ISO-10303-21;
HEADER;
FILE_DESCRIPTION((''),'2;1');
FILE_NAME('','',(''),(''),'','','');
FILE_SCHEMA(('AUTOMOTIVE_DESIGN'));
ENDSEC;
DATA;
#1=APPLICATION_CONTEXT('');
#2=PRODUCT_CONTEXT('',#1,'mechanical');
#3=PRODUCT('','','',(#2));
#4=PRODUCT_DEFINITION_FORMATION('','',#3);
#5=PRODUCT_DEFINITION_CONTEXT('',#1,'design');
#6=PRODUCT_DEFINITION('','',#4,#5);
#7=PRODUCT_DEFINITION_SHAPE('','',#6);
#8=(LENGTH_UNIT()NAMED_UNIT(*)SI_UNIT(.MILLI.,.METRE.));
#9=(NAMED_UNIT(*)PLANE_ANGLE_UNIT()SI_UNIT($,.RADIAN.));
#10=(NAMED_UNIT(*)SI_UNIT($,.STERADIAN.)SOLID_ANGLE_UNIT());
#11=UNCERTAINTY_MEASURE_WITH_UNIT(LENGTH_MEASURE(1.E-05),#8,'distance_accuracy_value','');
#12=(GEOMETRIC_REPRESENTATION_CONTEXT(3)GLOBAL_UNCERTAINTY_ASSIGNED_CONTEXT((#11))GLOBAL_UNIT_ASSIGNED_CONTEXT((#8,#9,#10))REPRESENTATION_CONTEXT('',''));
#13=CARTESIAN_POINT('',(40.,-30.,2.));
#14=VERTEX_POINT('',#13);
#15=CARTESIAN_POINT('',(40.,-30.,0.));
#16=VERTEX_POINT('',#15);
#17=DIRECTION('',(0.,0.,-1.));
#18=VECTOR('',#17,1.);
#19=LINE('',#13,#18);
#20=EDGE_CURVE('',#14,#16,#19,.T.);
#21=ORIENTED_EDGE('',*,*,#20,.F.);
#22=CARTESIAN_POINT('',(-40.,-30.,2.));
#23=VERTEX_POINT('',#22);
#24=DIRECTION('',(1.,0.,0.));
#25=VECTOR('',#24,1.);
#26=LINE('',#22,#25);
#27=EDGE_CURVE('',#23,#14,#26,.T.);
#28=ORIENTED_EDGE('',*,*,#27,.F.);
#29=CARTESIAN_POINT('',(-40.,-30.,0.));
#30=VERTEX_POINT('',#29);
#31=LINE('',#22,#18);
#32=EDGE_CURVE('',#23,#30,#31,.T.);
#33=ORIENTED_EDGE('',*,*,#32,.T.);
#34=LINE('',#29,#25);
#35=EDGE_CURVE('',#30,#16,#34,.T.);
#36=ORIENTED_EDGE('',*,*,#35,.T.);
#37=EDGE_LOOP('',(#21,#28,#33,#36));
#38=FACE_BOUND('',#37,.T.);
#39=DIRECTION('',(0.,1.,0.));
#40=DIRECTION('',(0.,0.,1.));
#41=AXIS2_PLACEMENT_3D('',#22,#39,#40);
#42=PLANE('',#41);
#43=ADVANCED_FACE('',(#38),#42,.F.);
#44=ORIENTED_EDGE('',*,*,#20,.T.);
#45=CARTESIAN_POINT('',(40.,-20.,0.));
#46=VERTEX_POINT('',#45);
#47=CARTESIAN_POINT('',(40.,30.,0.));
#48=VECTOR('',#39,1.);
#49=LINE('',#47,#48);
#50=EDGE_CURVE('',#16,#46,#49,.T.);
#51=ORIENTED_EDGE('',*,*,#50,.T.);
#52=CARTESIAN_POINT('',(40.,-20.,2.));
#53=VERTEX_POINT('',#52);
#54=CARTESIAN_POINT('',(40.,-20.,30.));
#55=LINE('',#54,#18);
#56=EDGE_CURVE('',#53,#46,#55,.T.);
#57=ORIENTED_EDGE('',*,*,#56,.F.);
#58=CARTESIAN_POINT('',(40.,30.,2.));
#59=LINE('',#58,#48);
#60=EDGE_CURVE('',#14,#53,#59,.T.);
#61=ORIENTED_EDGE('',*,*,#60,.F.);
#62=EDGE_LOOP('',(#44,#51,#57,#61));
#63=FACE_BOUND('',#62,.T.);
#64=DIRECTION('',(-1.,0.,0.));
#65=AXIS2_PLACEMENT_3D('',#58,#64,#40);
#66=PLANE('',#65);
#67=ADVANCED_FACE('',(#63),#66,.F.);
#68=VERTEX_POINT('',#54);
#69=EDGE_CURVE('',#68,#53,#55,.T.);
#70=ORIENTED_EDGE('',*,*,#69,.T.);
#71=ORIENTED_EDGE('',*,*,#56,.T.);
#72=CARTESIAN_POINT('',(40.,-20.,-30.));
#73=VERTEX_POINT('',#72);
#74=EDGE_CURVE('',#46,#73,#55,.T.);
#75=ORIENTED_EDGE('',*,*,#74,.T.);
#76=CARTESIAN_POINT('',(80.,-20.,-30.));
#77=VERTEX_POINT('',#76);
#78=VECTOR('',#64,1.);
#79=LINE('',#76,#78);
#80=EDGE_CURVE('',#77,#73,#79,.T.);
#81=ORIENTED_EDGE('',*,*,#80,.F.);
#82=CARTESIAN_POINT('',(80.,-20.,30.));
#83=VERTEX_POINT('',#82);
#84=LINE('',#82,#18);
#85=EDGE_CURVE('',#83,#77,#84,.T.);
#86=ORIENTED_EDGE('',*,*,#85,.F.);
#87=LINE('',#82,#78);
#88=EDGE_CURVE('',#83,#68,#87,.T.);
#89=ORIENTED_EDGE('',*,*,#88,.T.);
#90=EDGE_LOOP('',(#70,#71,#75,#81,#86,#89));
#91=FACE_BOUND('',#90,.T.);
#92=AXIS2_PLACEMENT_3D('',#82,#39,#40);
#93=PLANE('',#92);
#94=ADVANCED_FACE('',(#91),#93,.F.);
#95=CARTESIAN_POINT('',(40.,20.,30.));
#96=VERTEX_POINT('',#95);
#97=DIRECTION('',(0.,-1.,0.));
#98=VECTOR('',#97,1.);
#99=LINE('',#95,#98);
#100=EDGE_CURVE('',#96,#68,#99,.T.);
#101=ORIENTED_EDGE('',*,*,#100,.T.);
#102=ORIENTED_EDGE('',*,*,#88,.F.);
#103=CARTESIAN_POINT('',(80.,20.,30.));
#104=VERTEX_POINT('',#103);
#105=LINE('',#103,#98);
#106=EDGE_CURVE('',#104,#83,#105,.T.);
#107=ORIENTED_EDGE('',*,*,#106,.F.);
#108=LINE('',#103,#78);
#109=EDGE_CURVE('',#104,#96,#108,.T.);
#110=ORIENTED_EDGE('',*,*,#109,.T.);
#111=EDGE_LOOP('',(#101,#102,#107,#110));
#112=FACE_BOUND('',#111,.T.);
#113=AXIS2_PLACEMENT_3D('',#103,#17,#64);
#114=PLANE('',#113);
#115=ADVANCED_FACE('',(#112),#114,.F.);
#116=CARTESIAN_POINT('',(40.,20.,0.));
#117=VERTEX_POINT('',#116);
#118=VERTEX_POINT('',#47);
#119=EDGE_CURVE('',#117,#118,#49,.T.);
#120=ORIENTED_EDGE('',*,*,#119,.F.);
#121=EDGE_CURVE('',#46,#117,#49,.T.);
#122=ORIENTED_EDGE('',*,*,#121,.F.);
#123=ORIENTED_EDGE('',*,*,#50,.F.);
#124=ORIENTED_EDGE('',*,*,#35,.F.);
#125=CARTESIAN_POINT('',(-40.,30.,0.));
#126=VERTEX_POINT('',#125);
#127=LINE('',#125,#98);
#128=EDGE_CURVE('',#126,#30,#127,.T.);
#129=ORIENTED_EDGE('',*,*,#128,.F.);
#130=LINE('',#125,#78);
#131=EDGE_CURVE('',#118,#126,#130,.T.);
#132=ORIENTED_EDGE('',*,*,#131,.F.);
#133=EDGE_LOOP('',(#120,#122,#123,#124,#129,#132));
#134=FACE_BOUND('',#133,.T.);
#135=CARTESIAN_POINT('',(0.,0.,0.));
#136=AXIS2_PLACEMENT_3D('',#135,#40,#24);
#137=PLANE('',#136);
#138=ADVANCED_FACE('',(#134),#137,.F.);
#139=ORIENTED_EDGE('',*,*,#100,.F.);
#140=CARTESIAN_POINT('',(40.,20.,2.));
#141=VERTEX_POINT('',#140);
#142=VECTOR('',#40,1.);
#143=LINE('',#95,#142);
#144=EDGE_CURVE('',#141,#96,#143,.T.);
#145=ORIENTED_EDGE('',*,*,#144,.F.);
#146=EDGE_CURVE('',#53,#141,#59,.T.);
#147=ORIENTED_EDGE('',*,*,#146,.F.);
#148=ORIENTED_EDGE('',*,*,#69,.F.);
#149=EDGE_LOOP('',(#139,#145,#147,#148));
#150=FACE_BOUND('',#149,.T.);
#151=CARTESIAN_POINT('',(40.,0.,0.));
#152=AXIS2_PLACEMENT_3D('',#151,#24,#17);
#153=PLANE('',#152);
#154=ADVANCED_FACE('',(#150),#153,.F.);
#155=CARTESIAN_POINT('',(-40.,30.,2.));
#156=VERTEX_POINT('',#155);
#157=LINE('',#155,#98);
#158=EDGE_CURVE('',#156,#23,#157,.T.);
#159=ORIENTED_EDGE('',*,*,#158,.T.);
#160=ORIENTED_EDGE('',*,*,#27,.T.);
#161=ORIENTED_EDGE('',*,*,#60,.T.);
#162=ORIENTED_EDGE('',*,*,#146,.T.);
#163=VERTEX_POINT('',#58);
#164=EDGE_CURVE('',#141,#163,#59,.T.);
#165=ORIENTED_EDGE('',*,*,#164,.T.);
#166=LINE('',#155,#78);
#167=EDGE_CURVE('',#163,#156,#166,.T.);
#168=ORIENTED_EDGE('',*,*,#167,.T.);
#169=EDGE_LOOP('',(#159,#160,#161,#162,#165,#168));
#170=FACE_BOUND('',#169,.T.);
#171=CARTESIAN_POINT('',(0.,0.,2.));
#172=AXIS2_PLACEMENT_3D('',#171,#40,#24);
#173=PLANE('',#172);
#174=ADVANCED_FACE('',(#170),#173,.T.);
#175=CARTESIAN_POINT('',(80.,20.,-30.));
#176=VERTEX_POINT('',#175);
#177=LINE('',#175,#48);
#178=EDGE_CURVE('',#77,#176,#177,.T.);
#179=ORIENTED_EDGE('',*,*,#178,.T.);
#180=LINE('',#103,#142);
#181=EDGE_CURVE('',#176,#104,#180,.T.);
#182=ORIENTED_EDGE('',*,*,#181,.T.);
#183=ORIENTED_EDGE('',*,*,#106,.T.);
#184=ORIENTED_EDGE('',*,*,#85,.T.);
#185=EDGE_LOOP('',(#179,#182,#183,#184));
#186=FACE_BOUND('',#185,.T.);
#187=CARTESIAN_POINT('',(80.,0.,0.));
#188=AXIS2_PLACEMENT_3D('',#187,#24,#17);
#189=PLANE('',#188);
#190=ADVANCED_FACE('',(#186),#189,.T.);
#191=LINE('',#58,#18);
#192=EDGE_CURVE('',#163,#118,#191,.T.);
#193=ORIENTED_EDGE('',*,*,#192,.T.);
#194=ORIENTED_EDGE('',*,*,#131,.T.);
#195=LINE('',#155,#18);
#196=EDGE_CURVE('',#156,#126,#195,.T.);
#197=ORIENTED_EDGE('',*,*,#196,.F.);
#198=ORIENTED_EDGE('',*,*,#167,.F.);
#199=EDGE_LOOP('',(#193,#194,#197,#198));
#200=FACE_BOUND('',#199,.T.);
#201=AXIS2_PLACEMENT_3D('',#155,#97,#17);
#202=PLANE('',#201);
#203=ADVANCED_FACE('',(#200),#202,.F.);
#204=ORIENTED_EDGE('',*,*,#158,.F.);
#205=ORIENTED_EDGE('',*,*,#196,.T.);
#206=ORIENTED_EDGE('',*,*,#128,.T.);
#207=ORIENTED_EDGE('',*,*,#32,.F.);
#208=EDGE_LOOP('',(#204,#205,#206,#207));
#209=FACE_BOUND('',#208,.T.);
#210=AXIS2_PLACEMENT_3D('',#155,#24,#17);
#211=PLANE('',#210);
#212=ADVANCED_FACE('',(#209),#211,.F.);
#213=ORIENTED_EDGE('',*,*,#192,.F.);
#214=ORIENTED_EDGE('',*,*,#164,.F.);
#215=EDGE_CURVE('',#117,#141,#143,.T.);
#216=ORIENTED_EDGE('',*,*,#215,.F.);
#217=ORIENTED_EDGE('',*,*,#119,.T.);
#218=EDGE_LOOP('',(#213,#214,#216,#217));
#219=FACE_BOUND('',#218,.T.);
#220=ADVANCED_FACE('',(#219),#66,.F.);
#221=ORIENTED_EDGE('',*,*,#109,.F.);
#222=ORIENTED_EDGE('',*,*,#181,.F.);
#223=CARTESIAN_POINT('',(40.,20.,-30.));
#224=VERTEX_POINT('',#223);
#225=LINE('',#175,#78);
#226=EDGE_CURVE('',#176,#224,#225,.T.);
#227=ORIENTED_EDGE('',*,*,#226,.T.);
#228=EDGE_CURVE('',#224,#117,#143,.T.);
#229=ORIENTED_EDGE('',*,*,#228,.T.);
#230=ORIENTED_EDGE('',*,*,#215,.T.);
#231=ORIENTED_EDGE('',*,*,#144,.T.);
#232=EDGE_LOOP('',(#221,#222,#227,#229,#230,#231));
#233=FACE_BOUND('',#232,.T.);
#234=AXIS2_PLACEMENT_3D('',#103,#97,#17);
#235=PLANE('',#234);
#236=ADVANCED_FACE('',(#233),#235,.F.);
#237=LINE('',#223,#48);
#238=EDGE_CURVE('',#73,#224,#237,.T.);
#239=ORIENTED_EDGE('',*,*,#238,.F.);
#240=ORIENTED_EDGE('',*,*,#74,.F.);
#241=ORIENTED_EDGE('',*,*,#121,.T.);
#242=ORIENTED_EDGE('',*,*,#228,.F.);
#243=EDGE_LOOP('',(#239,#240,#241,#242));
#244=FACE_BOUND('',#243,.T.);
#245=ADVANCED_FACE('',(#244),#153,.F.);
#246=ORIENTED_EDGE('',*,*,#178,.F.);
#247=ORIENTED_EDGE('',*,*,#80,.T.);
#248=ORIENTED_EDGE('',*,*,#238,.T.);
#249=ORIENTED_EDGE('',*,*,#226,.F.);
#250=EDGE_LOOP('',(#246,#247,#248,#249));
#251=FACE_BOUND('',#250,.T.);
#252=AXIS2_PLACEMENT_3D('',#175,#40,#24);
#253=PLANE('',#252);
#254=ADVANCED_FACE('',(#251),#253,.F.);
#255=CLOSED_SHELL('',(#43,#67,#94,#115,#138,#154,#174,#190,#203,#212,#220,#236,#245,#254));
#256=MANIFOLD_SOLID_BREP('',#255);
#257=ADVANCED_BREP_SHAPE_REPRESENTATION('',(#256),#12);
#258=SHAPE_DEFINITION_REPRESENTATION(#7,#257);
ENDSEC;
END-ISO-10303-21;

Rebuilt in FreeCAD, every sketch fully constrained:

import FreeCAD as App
import Part
import Sketcher

V = App.Vector

doc = App.newDocument("Part")
body = doc.addObject("PartDesign::Body", "Body")

sketch1 = body.newObject("Sketcher::SketchObject", "Sketch")
sketch1.AttachmentSupport = (doc.getObject("XY_Plane"), [""])
sketch1.MapMode = "FlatFace"
sketch1.addGeometry([
    Part.LineSegment(V(-40, 30, 0), V(-40, -30, 0)),
    Part.LineSegment(V(-40, -30, 0), V(40, -30, 0)),
    Part.LineSegment(V(40, -30, 0), V(40, 30, 0)),
    Part.LineSegment(V(40, 30, 0), V(-40, 30, 0)),
], False)
sketch1.addConstraint([
    Sketcher.Constraint("Coincident", 0, 2, 1, 1),
    Sketcher.Constraint("Coincident", 1, 2, 2, 1),
    Sketcher.Constraint("Coincident", 2, 2, 3, 1),
    Sketcher.Constraint("Coincident", 3, 2, 0, 1),
    Sketcher.Constraint("Vertical", 0),
    Sketcher.Constraint("Horizontal", 1),
    Sketcher.Constraint("Vertical", 2),
    Sketcher.Constraint("Horizontal", 3),
    Sketcher.Constraint("Symmetric", 0, 2, 2, 2, -1, 1),
    Sketcher.Constraint("DistanceX", 1, 1, 1, 2, 80.0),
    Sketcher.Constraint("DistanceY", 0, 2, 0, 1, 60.0),
])
pad1 = body.newObject("PartDesign::Pad", "Pad")
pad1.Profile = sketch1
pad1.Length = 2

sketch2 = body.newObject("Sketcher::SketchObject", "Sketch001")
sketch2.AttachmentSupport = (doc.getObject("YZ_Plane"), [""])
sketch2.MapMode = "FlatFace"
sketch2.AttachmentOffset = App.Placement(V(0, 0, 40), App.Rotation())
sketch2.addGeometry([
    Part.LineSegment(V(20, 30, 0), V(-20, 30, 0)),
    Part.LineSegment(V(-20, 30, 0), V(-20, -30, 0)),
    Part.LineSegment(V(-20, -30, 0), V(20, -30, 0)),
    Part.LineSegment(V(20, -30, 0), V(20, 30, 0)),
], False)
sketch2.addConstraint([
    Sketcher.Constraint("Coincident", 0, 2, 1, 1),
    Sketcher.Constraint("Coincident", 1, 2, 2, 1),
    Sketcher.Constraint("Coincident", 2, 2, 3, 1),
    Sketcher.Constraint("Coincident", 3, 2, 0, 1),
    Sketcher.Constraint("Horizontal", 0),
    Sketcher.Constraint("Vertical", 1),
    Sketcher.Constraint("Horizontal", 2),
    Sketcher.Constraint("Vertical", 3),
    Sketcher.Constraint("Symmetric", 0, 2, 2, 2, -1, 1),
    Sketcher.Constraint("DistanceX", 0, 2, 0, 1, 40.0),
    Sketcher.Constraint("DistanceY", 1, 2, 1, 1, 60.0),
])
pad2 = body.newObject("PartDesign::Pad", "Pad001")
pad2.Profile = sketch2
pad2.Length = 40

doc.recompute()
